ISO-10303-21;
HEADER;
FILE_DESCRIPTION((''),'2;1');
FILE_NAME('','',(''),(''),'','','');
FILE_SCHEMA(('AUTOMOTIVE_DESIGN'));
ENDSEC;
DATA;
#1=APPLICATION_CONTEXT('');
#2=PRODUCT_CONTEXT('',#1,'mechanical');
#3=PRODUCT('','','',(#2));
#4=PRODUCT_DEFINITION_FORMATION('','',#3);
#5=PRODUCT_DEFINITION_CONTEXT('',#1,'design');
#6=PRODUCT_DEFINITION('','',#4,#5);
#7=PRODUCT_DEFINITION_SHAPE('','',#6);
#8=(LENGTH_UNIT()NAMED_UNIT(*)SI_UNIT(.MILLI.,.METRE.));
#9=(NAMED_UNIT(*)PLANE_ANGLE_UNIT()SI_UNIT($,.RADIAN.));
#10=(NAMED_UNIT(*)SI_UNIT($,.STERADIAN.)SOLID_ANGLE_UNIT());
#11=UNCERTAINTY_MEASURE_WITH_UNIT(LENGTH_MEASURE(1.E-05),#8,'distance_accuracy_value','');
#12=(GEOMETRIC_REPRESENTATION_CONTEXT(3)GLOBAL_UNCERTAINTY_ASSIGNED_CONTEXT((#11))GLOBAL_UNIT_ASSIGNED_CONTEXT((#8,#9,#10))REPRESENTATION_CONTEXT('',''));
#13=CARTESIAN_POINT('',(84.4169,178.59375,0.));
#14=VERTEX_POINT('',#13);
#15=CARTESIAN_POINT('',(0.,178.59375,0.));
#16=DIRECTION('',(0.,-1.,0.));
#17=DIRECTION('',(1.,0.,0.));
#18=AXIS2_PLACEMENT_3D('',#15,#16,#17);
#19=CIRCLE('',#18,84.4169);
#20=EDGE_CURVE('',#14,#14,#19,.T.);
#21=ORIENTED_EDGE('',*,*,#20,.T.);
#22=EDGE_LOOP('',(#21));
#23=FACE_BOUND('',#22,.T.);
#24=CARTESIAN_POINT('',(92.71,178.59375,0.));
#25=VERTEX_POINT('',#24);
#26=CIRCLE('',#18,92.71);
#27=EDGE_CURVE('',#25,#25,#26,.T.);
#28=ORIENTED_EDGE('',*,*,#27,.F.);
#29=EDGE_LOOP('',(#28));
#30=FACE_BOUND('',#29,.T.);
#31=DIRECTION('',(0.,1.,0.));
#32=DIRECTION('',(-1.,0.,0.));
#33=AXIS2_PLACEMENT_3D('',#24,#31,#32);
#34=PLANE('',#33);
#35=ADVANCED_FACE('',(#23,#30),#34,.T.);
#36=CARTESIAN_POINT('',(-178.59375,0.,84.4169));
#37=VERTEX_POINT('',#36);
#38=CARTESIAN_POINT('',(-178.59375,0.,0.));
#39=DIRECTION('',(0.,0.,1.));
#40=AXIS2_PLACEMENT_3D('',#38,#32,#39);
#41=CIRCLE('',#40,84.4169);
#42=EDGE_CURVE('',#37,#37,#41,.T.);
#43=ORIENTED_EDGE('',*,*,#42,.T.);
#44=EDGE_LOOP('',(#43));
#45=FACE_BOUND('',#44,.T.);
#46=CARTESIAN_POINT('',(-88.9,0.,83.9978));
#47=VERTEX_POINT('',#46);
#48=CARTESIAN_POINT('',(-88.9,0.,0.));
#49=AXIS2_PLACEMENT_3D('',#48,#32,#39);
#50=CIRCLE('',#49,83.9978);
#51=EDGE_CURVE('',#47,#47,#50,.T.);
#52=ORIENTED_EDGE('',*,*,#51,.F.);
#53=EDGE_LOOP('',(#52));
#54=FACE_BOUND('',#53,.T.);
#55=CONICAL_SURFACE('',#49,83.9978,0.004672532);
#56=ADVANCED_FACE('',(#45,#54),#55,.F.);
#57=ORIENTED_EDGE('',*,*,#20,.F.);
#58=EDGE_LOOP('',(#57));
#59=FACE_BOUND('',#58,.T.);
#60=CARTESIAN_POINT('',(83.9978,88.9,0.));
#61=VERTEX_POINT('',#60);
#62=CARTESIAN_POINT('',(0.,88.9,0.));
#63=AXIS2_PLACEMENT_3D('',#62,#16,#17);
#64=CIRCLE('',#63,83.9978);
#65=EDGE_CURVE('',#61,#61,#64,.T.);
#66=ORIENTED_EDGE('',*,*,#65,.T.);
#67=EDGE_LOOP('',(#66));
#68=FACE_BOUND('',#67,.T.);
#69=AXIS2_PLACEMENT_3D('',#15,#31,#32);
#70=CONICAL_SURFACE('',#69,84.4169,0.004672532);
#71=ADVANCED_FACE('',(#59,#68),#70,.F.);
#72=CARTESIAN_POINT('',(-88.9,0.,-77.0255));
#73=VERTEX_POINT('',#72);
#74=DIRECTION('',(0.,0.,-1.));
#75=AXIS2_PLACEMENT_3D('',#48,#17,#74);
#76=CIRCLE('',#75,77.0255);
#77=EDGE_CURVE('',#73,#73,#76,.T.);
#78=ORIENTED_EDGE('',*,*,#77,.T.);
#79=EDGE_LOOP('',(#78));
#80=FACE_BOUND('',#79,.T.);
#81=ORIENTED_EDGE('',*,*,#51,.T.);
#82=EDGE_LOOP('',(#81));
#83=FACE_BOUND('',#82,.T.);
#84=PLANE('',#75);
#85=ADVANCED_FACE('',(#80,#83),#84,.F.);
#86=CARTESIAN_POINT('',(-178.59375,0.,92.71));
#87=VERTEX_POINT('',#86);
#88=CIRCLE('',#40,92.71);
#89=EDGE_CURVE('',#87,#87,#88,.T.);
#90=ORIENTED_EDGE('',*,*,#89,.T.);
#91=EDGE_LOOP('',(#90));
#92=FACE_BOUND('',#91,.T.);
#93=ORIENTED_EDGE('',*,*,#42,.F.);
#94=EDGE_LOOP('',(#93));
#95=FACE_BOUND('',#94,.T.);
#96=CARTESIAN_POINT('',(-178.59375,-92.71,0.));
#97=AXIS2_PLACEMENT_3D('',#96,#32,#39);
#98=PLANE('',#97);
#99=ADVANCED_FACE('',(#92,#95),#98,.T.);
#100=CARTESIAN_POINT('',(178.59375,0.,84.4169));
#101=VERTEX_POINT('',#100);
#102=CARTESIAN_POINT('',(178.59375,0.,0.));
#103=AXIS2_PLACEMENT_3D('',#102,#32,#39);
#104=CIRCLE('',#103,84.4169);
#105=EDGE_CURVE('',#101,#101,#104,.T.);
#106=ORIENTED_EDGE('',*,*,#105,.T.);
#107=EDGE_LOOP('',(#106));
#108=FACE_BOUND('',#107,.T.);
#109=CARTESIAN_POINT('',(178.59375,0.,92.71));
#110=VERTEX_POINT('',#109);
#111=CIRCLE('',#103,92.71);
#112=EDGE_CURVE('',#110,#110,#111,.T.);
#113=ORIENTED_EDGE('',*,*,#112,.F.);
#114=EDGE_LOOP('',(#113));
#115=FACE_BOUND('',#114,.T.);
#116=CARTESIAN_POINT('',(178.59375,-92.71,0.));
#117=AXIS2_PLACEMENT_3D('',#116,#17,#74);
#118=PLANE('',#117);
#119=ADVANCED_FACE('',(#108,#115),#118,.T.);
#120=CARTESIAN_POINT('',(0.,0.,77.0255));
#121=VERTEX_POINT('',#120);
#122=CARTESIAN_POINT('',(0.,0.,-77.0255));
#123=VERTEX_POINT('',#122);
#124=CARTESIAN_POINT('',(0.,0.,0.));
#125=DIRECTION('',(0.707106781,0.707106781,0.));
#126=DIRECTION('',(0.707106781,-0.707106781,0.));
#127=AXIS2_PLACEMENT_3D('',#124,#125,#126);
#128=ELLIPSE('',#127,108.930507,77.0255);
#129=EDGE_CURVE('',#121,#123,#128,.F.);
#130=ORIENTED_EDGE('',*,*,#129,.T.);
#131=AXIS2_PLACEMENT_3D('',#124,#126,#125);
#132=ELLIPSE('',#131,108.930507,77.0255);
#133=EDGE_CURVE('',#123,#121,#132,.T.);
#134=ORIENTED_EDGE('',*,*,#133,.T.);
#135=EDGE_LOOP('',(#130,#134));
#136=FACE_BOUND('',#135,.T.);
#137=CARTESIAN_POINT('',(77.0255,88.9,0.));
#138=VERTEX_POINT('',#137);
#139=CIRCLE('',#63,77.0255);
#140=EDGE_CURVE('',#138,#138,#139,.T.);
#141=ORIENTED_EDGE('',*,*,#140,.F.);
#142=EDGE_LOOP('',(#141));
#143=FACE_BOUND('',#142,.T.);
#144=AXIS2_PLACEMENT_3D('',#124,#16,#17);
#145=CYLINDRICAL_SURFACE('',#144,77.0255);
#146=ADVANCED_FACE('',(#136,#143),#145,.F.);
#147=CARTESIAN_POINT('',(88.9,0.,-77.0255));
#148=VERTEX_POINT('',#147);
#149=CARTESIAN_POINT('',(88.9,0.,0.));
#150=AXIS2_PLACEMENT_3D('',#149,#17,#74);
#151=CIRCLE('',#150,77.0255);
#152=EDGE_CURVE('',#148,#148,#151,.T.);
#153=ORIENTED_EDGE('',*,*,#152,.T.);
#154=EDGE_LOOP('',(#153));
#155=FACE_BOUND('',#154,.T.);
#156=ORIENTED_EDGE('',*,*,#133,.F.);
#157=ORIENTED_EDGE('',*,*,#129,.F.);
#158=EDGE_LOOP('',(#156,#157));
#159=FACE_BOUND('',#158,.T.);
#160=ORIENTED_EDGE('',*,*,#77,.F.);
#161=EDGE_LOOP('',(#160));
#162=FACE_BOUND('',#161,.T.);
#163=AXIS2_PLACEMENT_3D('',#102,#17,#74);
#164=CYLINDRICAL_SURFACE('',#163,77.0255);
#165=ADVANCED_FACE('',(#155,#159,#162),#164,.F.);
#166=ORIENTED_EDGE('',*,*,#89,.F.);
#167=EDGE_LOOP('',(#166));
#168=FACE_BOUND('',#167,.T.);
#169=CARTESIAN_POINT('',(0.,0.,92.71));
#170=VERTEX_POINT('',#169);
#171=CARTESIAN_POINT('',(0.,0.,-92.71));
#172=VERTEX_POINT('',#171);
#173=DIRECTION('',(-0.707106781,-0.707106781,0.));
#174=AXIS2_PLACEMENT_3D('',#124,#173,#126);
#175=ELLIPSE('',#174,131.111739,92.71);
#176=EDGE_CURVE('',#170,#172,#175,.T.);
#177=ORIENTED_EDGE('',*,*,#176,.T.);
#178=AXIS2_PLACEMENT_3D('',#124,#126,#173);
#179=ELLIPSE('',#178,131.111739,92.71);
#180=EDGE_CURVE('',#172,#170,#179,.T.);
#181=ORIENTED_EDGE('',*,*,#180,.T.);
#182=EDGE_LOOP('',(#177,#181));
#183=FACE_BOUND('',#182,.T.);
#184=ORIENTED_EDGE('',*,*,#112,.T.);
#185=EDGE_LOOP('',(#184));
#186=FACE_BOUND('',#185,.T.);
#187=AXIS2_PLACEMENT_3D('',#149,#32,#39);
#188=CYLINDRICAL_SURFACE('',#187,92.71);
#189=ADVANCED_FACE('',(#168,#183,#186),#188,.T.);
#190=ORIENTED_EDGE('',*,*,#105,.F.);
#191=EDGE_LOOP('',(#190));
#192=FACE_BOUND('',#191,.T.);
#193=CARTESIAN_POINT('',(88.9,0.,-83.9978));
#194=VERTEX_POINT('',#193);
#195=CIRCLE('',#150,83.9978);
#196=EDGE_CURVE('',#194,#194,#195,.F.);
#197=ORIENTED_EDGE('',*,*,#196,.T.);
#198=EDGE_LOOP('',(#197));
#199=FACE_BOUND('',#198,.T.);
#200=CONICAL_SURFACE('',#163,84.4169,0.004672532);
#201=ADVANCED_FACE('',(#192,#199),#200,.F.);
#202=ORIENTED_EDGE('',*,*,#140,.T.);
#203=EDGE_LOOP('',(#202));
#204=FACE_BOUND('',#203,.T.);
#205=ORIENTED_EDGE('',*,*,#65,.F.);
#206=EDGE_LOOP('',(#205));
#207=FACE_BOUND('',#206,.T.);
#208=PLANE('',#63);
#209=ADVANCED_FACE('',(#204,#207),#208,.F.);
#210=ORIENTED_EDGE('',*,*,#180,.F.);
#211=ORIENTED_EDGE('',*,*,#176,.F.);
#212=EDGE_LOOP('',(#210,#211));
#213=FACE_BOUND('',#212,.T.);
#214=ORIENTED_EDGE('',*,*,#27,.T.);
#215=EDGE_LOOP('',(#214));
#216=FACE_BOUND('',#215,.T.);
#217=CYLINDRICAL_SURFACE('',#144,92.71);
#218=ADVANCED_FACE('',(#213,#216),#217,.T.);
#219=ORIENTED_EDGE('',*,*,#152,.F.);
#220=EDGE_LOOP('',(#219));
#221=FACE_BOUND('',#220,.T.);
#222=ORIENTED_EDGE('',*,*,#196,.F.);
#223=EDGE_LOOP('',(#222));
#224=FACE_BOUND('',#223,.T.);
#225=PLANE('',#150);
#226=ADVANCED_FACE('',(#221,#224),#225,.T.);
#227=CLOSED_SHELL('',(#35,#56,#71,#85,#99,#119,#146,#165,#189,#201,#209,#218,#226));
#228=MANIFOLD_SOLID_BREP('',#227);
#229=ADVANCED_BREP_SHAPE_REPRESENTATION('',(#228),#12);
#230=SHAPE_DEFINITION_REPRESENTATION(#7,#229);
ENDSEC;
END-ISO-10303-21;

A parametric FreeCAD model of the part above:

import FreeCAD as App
import Part
import Sketcher
Q = App.Units.Quantity

doc = App.newDocument("Part")
body = doc.addObject("PartDesign::Body", "Body")
body.AllowCompound = True

sketch1 = body.newObject("Sketcher::SketchObject", "Sketch")
sketch1.AttachmentSupport = (doc.getObject("XY_Plane"), [""])
sketch1.MapMode = "FlatFace"
sketch1.addGeometry(Part.LineSegment(App.Vector(-178.59375, -92.71, 0), App.Vector(-88.9, -92.71, 0)), False)
sketch1.addGeometry(Part.LineSegment(App.Vector(-88.9, -92.71, 0), App.Vector(-88.9, -83.9978, 0)), False)
sketch1.addGeometry(Part.LineSegment(App.Vector(-88.9, -83.9978, 0), App.Vector(-178.59375, -84.4169, 0)), False)
sketch1.addGeometry(Part.LineSegment(App.Vector(-178.59375, -84.4169, 0), App.Vector(-178.59375, -92.71, 0)), False)
sketch1.addGeometry(Part.LineSegment(App.Vector(178.59375, -84.4169, 0), App.Vector(88.9, -83.9978, 0)), False)
sketch1.addGeometry(Part.LineSegment(App.Vector(88.9, -83.9978, 0), App.Vector(88.9, -92.71, 0)), False)
sketch1.addGeometry(Part.LineSegment(App.Vector(88.9, -92.71, 0), App.Vector(178.59375, -92.71, 0)), False)
sketch1.addGeometry(Part.LineSegment(App.Vector(178.59375, -92.71, 0), App.Vector(178.59375, -84.4169, 0)), False)
sketch1.addConstraint(Sketcher.Constraint("Coincident", 0, 2, 1, 1))
sketch1.addConstraint(Sketcher.Constraint("Coincident", 1, 2, 2, 1))
sketch1.addConstraint(Sketcher.Constraint("Coincident", 2, 2, 3, 1))
sketch1.addConstraint(Sketcher.Constraint("Coincident", 3, 2, 0, 1))
sketch1.addConstraint(Sketcher.Constraint("Coincident", 4, 2, 5, 1))
sketch1.addConstraint(Sketcher.Constraint("Coincident", 5, 2, 6, 1))
sketch1.addConstraint(Sketcher.Constraint("Coincident", 6, 2, 7, 1))
sketch1.addConstraint(Sketcher.Constraint("Coincident", 7, 2, 4, 1))
sketch1.addConstraint(Sketcher.Constraint("Horizontal", 0))
sketch1.addConstraint(Sketcher.Constraint("Vertical", 1))
sketch1.addConstraint(Sketcher.Constraint("Vertical", 3))
sketch1.addConstraint(Sketcher.Constraint("Vertical", 5))
sketch1.addConstraint(Sketcher.Constraint("Horizontal", 6))
sketch1.addConstraint(Sketcher.Constraint("Vertical", 7))
sketch1.addConstraint(Sketcher.Constraint("Symmetric", 1, 2, 4, 2, -2))
sketch1.addConstraint(Sketcher.Constraint("Symmetric", 3, 2, 6, 2, -2))
sketch1.addConstraint(Sketcher.Constraint("Horizontal", 2, 2, 7, 2))
sketch1.addConstraint(Sketcher.Constraint("DistanceX", 1, 2, 4, 2, Q("7 in")))
sketch1.addConstraint(Sketcher.Constraint("DistanceX", 0, 1, 0, 2, Q("3.53125 in")))
sketch1.addConstraint(Sketcher.Constraint("DistanceY", 1, 1, 1, 2, Q("0.343 in")))
sketch1.addConstraint(Sketcher.Constraint("DistanceY", 0, 2, -1, 1, Q("3.65 in")))
sketch1.addConstraint(Sketcher.Constraint("DistanceY", 3, 2, 3, 1, Q("0.3265 in")))
revolution = body.newObject("PartDesign::Revolution", "Revolution")
revolution.Profile = sketch1
revolution.ReferenceAxis = (sketch1, ["H_Axis"])
revolution.Angle = 360
body2 = doc.addObject("PartDesign::Body", "Body001")

sketch2 = body2.newObject("Sketcher::SketchObject", "Sketch001")
sketch2.AttachmentSupport = (doc.getObject("XY_Plane001"), [""])
sketch2.MapMode = "FlatFace"
sketch2.addGeometry(Part.LineSegment(App.Vector(84.4169, 178.59375, 0), App.Vector(83.9978, 88.9, 0)), False)
sketch2.addGeometry(Part.LineSegment(App.Vector(83.9978, 88.9, 0), App.Vector(92.71, 88.9, 0)), False)
sketch2.addGeometry(Part.LineSegment(App.Vector(92.71, 88.9, 0), App.Vector(92.71, 178.59375, 0)), False)
sketch2.addGeometry(Part.LineSegment(App.Vector(92.71, 178.59375, 0), App.Vector(84.4169, 178.59375, 0)), False)
sketch2.addConstraint(Sketcher.Constraint("Coincident", 0, 2, 1, 1))
sketch2.addConstraint(Sketcher.Constraint("Coincident", 1, 2, 2, 1))
sketch2.addConstraint(Sketcher.Constraint("Coincident", 2, 2, 3, 1))
sketch2.addConstraint(Sketcher.Constraint("Coincident", 3, 2, 0, 1))
sketch2.addConstraint(Sketcher.Constraint("Horizontal", 1))
sketch2.addConstraint(Sketcher.Constraint("Vertical", 2))
sketch2.addConstraint(Sketcher.Constraint("Horizontal", 3))
sketch2.addConstraint(Sketcher.Constraint("DistanceY", -1, 1, 0, 2, Q("3.5 in")))
sketch2.addConstraint(Sketcher.Constraint("DistanceX", 1, 1, 1, 2, Q("0.343 in")))
sketch2.addConstraint(Sketcher.Constraint("DistanceY", 2, 1, 2, 2, Q("3.53125 in")))
sketch2.addConstraint(Sketcher.Constraint("DistanceX", -1, 1, 1, 2, Q("3.65 in")))
sketch2.addConstraint(Sketcher.Constraint("DistanceX", 3, 2, 3, 1, Q("0.3265 in")))
revolution2 = body2.newObject("PartDesign::Revolution", "Revolution001")
revolution2.Profile = sketch2
revolution2.ReferenceAxis = (sketch2, ["V_Axis"])
revolution2.Angle = 360
doc.recompute()

boolean = body.newObject("PartDesign::Boolean", "Boolean")
boolean.Type = "Fuse"
boolean.addObjects([body2])

sketch3 = body.newObject("Sketcher::SketchObject", "Sketch002")
sketch3.AttachmentSupport = (doc.getObject("YZ_Plane"), [""])
sketch3.MapMode = "FlatFace"
sketch3.AttachmentOffset = App.Placement(App.Vector(0, 0, -3.5 * 25.4), App.Rotation())
sketch3.addGeometry(Part.Circle(App.Vector(0, 0, 0), App.Vector(0, 0, 1), 92.71), False)
sketch3.addConstraint(Sketcher.Constraint("Coincident", 0, 3, -1, 1))
sketch3.addConstraint(Sketcher.Constraint("Diameter", 0, Q("7.3 in")))
pad1 = body.newObject("PartDesign::Pad", "Pad")
pad1.Profile = sketch3
pad1.Length = Q("7 in")

sketch4 = body.newObject("Sketcher::SketchObject", "Sketch003")
sketch4.AttachmentSupport = (doc.getObject("XZ_Plane"), [""])
sketch4.MapMode = "FlatFace"
sketch4.AttachmentOffset = App.Placement(App.Vector(0, 0, -3.5 * 25.4), App.Rotation())
sketch4.addGeometry(Part.Circle(App.Vector(0, 0, 0), App.Vector(0, 0, 1), 92.71), False)
sketch4.addConstraint(Sketcher.Constraint("Coincident", 0, 3, -1, 1))
sketch4.addConstraint(Sketcher.Constraint("Diameter", 0, Q("7.3 in")))
pad2 = body.newObject("PartDesign::Pad", "Pad001")
pad2.Profile = sketch4
pad2.Length = Q("3.5 in")

sketch5 = body.newObject("Sketcher::SketchObject", "Sketch004")
sketch5.AttachmentSupport = (doc.getObject("XY_Plane"), [""])
sketch5.MapMode = "FlatFace"
sketch5.addGeometry(Part.LineSegment(App.Vector(-178.59375, -84.4169, 0), App.Vector(-88.9, -83.9978, 0)), False)
sketch5.addGeometry(Part.LineSegment(App.Vector(-88.9, -83.9978, 0), App.Vector(-88.9, -77.0255, 0)), False)
sketch5.addGeometry(Part.LineSegment(App.Vector(-88.9, -77.0255, 0), App.Vector(88.9, -77.0255, 0)), False)
sketch5.addGeometry(Part.LineSegment(App.Vector(88.9, -77.0255, 0), App.Vector(88.9, -83.9978, 0)), False)
sketch5.addGeometry(Part.LineSegment(App.Vector(88.9, -83.9978, 0), App.Vector(178.59375, -84.4169, 0)), False)
sketch5.addGeometry(Part.LineSegment(App.Vector(178.59375, -84.4169, 0), App.Vector(178.59375, 0, 0)), False)
sketch5.addGeometry(Part.LineSegment(App.Vector(178.59375, 0, 0), App.Vector(-178.59375, 0, 0)), False)
sketch5.addGeometry(Part.LineSegment(App.Vector(-178.59375, 0, 0), App.Vector(-178.59375, -84.4169, 0)), False)
sketch5.addConstraint(Sketcher.Constraint("Coincident", 0, 2, 1, 1))
sketch5.addConstraint(Sketcher.Constraint("Coincident", 1, 2, 2, 1))
sketch5.addConstraint(Sketcher.Constraint("Coincident", 2, 2, 3, 1))
sketch5.addConstraint(Sketcher.Constraint("Coincident", 3, 2, 4, 1))
sketch5.addConstraint(Sketcher.Constraint("Coincident", 4, 2, 5, 1))
sketch5.addConstraint(Sketcher.Constraint("Coincident", 5, 2, 6, 1))
sketch5.addConstraint(Sketcher.Constraint("Coincident", 6, 2, 7, 1))
sketch5.addConstraint(Sketcher.Constraint("Coincident", 7, 2, 0, 1))
sketch5.addConstraint(Sketcher.Constraint("Vertical", 1))
sketch5.addConstraint(Sketcher.Constraint("Horizontal", 2))
sketch5.addConstraint(Sketcher.Constraint("Vertical", 3))
sketch5.addConstraint(Sketcher.Constraint("Vertical", 5))
sketch5.addConstraint(Sketcher.Constraint("Horizontal", 6))
sketch5.addConstraint(Sketcher.Constraint("Vertical", 7))
sketch5.addConstraint(Sketcher.Constraint("Symmetric", 5, 2, 6, 2, -1, 1))
sketch5.addConstraint(Sketcher.Constraint("Symmetric", 0, 2, 3, 2, -2))
sketch5.addConstraint(Sketcher.Constraint("Horizontal", 4, 2, 7, 2))
sketch5.addConstraint(Sketcher.Constraint("DistanceX", 2, 1, 2, 2, Q("7 in")))
sketch5.addConstraint(Sketcher.Constraint("DistanceX", 6, 2, 6, 1, Q("14.0625 in")))
sketch5.addConstraint(Sketcher.Constraint("DistanceY", 1, 1, 1, 2, Q("0.2745 in")))
sketch5.addConstraint(Sketcher.Constraint("DistanceY", 5, 1, 5, 2, Q("3.3235 in")))
sketch5.addConstraint(Sketcher.Constraint("DistanceY", 0, 2, -1, 1, Q("3.307 in")))
groove = body.newObject("PartDesign::Groove", "Groove")
groove.Profile = sketch5
groove.ReferenceAxis = (sketch5, ["H_Axis"])
groove.Angle = 360

sketch6 = body.newObject("Sketcher::SketchObject", "Sketch005")
sketch6.AttachmentSupport = (doc.getObject("XY_Plane"), [""])
sketch6.MapMode = "FlatFace"
sketch6.addGeometry(Part.LineSegment(App.Vector(83.9978, 88.9, 0), App.Vector(84.4169, 178.59375, 0)), False)
sketch6.addGeometry(Part.LineSegment(App.Vector(84.4169, 178.59375, 0), App.Vector(0, 178.59375, 0)), False)
sketch6.addGeometry(Part.LineSegment(App.Vector(0, 178.59375, 0), App.Vector(0, 0, 0)), False)
sketch6.addGeometry(Part.LineSegment(App.Vector(0, 0, 0), App.Vector(77.0255, 0, 0)), False)
sketch6.addGeometry(Part.LineSegment(App.Vector(77.0255, 0, 0), App.Vector(77.0255, 88.9, 0)), False)
sketch6.addGeometry(Part.LineSegment(App.Vector(77.0255, 88.9, 0), App.Vector(83.9978, 88.9, 0)), False)
sketch6.addConstraint(Sketcher.Constraint("Coincident", 0, 2, 1, 1))
sketch6.addConstraint(Sketcher.Constraint("Coincident", 1, 2, 2, 1))
sketch6.addConstraint(Sketcher.Constraint("Coincident", 2, 2, 3, 1))
sketch6.addConstraint(Sketcher.Constraint("Coincident", 3, 2, 4, 1))
sketch6.addConstraint(Sketcher.Constraint("Coincident", 4, 2, 5, 1))
sketch6.addConstraint(Sketcher.Constraint("Coincident", 5, 2, 0, 1))
sketch6.addConstraint(Sketcher.Constraint("Horizontal", 1))
sketch6.addConstraint(Sketcher.Constraint("Vertical", 2))
sketch6.addConstraint(Sketcher.Constraint("Horizontal", 3))
sketch6.addConstraint(Sketcher.Constraint("Vertical", 4))
sketch6.addConstraint(Sketcher.Constraint("Horizontal", 5))
sketch6.addConstraint(Sketcher.Constraint("Coincident", 2, 2, -1, 1))
sketch6.addConstraint(Sketcher.Constraint("DistanceY", 4, 1, 4, 2, Q("3.5 in")))
sketch6.addConstraint(Sketcher.Constraint("DistanceY", 2, 2, 2, 1, Q("7.03125 in")))
sketch6.addConstraint(Sketcher.Constraint("DistanceX", 1, 2, 1, 1, Q("3.3235 in")))
sketch6.addConstraint(Sketcher.Constraint("DistanceX", 3, 1, 3, 2, Q("3.0325 in")))
sketch6.addConstraint(Sketcher.Constraint("DistanceX", 5, 1, 5, 2, Q("0.2745 in")))
groove2 = body.newObject("PartDesign::Groove", "Groove001")
groove2.Profile = sketch6
groove2.ReferenceAxis = (sketch6, ["V_Axis"])
groove2.Angle = 360

doc.recompute()
